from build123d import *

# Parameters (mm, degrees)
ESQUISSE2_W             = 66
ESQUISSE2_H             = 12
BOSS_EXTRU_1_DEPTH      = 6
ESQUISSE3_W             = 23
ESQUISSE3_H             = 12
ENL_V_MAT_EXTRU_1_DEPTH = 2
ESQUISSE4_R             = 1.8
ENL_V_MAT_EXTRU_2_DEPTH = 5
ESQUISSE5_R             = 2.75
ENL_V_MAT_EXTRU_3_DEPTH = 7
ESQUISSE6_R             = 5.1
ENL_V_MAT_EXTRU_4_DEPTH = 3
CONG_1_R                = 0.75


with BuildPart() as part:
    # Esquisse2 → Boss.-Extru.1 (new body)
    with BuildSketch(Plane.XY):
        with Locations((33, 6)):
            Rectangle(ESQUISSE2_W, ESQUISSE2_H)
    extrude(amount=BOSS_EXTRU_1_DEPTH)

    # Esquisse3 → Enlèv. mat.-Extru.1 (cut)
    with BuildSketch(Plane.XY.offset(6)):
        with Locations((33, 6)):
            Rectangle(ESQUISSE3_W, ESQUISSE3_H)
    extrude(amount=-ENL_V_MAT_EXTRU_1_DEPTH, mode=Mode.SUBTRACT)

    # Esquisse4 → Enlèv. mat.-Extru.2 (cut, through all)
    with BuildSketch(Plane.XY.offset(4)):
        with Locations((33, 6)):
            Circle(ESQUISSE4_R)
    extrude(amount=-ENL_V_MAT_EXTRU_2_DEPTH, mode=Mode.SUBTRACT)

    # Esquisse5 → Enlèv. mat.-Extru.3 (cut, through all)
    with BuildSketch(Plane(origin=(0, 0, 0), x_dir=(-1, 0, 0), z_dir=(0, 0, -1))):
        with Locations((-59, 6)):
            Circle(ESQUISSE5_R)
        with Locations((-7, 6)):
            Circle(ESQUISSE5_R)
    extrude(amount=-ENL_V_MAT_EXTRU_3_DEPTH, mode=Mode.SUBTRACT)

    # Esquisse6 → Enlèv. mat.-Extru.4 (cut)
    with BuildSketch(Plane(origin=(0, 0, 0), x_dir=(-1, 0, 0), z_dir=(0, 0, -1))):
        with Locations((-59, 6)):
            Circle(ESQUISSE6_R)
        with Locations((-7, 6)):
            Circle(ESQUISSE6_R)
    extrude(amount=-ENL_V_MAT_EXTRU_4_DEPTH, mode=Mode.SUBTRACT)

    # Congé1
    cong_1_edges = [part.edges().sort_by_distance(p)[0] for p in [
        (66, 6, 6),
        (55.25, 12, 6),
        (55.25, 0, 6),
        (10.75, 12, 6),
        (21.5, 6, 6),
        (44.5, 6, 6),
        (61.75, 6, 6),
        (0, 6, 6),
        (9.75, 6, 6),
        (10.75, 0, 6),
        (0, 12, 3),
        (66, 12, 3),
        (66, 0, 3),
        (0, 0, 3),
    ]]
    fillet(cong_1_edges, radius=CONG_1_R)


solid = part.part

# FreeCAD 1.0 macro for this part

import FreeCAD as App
import Part
import Sketcher

V = App.Vector


def edges_at(feature, points):
    """Names of the edges that pass closest to the given points."""
    edges = feature.Shape.Edges
    near = lambda p: min(range(len(edges)), key=lambda i: edges[i].distToShape(Part.Vertex(*p))[0])
    return sorted({f"Edge{near(p) + 1}" for p in points})

doc = App.newDocument("Part")
body = doc.addObject("PartDesign::Body", "Body")

# Sketch on XY plane
sketch1 = body.newObject("Sketcher::SketchObject", "Sketch")
sketch1.AttachmentSupport = (doc.getObject("XY_Plane"), [""])
sketch1.MapMode = "FlatFace"
sketch1.addGeometry(Part.LineSegment(V(0, 12, 0), V(0, 0, 0)), False)
sketch1.addGeometry(Part.LineSegment(V(0, 0, 0), V(66, 0, 0)), False)
sketch1.addGeometry(Part.LineSegment(V(66, 0, 0), V(66, 12, 0)), False)
sketch1.addGeometry(Part.LineSegment(V(66, 12, 0), V(0, 12, 0)), False)
sketch1.addConstraint(Sketcher.Constraint("Coincident", 0, 2, 1, 1))
sketch1.addConstraint(Sketcher.Constraint("Coincident", 1, 2, 2, 1))
sketch1.addConstraint(Sketcher.Constraint("Coincident", 2, 2, 3, 1))
sketch1.addConstraint(Sketcher.Constraint("Coincident", 3, 2, 0, 1))
sketch1.addConstraint(Sketcher.Constraint("Vertical", 0))
sketch1.addConstraint(Sketcher.Constraint("Horizontal", 1))
sketch1.addConstraint(Sketcher.Constraint("Vertical", 2))
sketch1.addConstraint(Sketcher.Constraint("Horizontal", 3))
sketch1.addConstraint(Sketcher.Constraint("Coincident", 0, 2, -1, 1))
sketch1.addConstraint(Sketcher.Constraint("DistanceX", 1, 1, 1, 2, 66.0))
sketch1.addConstraint(Sketcher.Constraint("DistanceY", 0, 2, 0, 1, 12.0))
pad1 = body.newObject("PartDesign::Pad", "Pad")
pad1.Profile = sketch1
pad1.Length = 6

# Sketch on XY plane
sketch2 = body.newObject("Sketcher::SketchObject", "Sketch001")
sketch2.AttachmentSupport = (doc.getObject("XY_Plane"), [""])
sketch2.MapMode = "FlatFace"
sketch2.AttachmentOffset = App.Placement(V(0, 0, 6), App.Rotation())
sketch2.addGeometry(Part.LineSegment(V(22, 12, 0), V(22, 0, 0)), False)
sketch2.addGeometry(Part.LineSegment(V(22, 0, 0), V(44, 0, 0)), False)
sketch2.addGeometry(Part.LineSegment(V(44, 0, 0), V(44, 12, 0)), False)
sketch2.addGeometry(Part.LineSegment(V(44, 12, 0), V(22, 12, 0)), False)
sketch2.addConstraint(Sketcher.Constraint("Coincident", 0, 2, 1, 1))
sketch2.addConstraint(Sketcher.Constraint("Coincident", 1, 2, 2, 1))
sketch2.addConstraint(Sketcher.Constraint("Coincident", 2, 2, 3, 1))
sketch2.addConstraint(Sketcher.Constraint("Coincident", 3, 2, 0, 1))
sketch2.addConstraint(Sketcher.Constraint("Vertical", 0))
sketch2.addConstraint(Sketcher.Constraint("Horizontal", 1))
sketch2.addConstraint(Sketcher.Constraint("Vertical", 2))
sketch2.addConstraint(Sketcher.Constraint("Horizontal", 3))
sketch2.addConstraint(Sketcher.Constraint("PointOnObject", 0, 2, -1))
sketch2.addConstraint(Sketcher.Constraint("DistanceX", 1, 1, 1, 2, 23.0))
sketch2.addConstraint(Sketcher.Constraint("DistanceY", 0, 2, 0, 1, 12.0))
sketch2.addConstraint(Sketcher.Constraint("DistanceX", -1, 1, 0, 2, 21.5))
pocket1 = body.newObject("PartDesign::Pocket", "Pocket")
pocket1.Profile = sketch2
pocket1.Length = 2

# Sketch on XY plane
sketch3 = body.newObject("Sketcher::SketchObject", "Sketch002")
sketch3.AttachmentSupport = (doc.getObject("XY_Plane"), [""])
sketch3.MapMode = "FlatFace"
sketch3.AttachmentOffset = App.Placement(V(0, 0, 4), App.Rotation())
sketch3.addGeometry(Part.Circle(V(33, 6, 0), V(0, 0, 1), 1.8), False)
sketch3.addConstraint(Sketcher.Constraint("Diameter", 0, 3.6))
sketch3.addConstraint(Sketcher.Constraint("DistanceX", -1, 1, 0, 3, 33.0))
sketch3.addConstraint(Sketcher.Constraint("DistanceY", -1, 1, 0, 3, 6.0))
pocket2 = body.newObject("PartDesign::Pocket", "Pocket001")
pocket2.Profile = sketch3
pocket2.Type = "ThroughAll"

# Sketch on XY plane
sketch4 = body.newObject("Sketcher::SketchObject", "Sketch003")
sketch4.AttachmentSupport = (doc.getObject("XY_Plane"), [""])
sketch4.MapMode = "FlatFace"
sketch4.addGeometry(Part.Circle(V(59, 6, 0), V(0, 0, 1), 2.8), False)
sketch4.addGeometry(Part.Circle(V(7, 6, 0), V(0, 0, 1), 2.8), False)
sketch4.addConstraint(Sketcher.Constraint("Equal", 0, 1))
sketch4.addConstraint(Sketcher.Constraint("Horizontal", 0, 3, 1, 3))
sketch4.addConstraint(Sketcher.Constraint("Diameter", 0, 5.5))
sketch4.addConstraint(Sketcher.Constraint("DistanceX", -1, 1, 0, 3, 59.0))
sketch4.addConstraint(Sketcher.Constraint("DistanceY", -1, 1, 0, 3, 6.0))
sketch4.addConstraint(Sketcher.Constraint("DistanceX", -1, 1, 1, 3, 7.0))
pocket3 = body.newObject("PartDesign::Pocket", "Pocket002")
pocket3.Profile = sketch4
pocket3.Type = "ThroughAll"
pocket3.Reversed = True

# Sketch on XY plane
sketch5 = body.newObject("Sketcher::SketchObject", "Sketch004")
sketch5.AttachmentSupport = (doc.getObject("XY_Plane"), [""])
sketch5.MapMode = "FlatFace"
sketch5.addGeometry(Part.Circle(V(59, 6, 0), V(0, 0, 1), 5), False)
sketch5.addGeometry(Part.Circle(V(7, 6, 0), V(0, 0, 1), 5), False)
sketch5.addConstraint(Sketcher.Constraint("Equal", 0, 1))
sketch5.addConstraint(Sketcher.Constraint("Horizontal", 0, 3, 1, 3))
sketch5.addConstraint(Sketcher.Constraint("Diameter", 0, 10.2))
sketch5.addConstraint(Sketcher.Constraint("DistanceX", -1, 1, 0, 3, 59.0))
sketch5.addConstraint(Sketcher.Constraint("DistanceY", -1, 1, 0, 3, 6.0))
sketch5.addConstraint(Sketcher.Constraint("DistanceX", -1, 1, 1, 3, 7.0))
pocket4 = body.newObject("PartDesign::Pocket", "Pocket003")
pocket4.Profile = sketch5
pocket4.Length = 3
pocket4.Reversed = True
doc.recompute()

fillet = body.newObject("PartDesign::Fillet", "Fillet")
fillet.Base = (pocket4, edges_at(pocket4, [
    (66, 6, 6),
    (55.25, 12, 6),
    (55.25, 0, 6),
    (10.75, 12, 6),
    (21.5, 6, 6),
    (44.5, 6, 6),
    (61.75, 6, 6),
    (0, 6, 6),
    (9.75, 6, 6),
    (10.75, 0, 6),
    (0, 12, 3),
    (66, 12, 3),
    (66, 0, 3),
    (0, 0, 3),
]))
fillet.Radius = 0.75

doc.recompute()
